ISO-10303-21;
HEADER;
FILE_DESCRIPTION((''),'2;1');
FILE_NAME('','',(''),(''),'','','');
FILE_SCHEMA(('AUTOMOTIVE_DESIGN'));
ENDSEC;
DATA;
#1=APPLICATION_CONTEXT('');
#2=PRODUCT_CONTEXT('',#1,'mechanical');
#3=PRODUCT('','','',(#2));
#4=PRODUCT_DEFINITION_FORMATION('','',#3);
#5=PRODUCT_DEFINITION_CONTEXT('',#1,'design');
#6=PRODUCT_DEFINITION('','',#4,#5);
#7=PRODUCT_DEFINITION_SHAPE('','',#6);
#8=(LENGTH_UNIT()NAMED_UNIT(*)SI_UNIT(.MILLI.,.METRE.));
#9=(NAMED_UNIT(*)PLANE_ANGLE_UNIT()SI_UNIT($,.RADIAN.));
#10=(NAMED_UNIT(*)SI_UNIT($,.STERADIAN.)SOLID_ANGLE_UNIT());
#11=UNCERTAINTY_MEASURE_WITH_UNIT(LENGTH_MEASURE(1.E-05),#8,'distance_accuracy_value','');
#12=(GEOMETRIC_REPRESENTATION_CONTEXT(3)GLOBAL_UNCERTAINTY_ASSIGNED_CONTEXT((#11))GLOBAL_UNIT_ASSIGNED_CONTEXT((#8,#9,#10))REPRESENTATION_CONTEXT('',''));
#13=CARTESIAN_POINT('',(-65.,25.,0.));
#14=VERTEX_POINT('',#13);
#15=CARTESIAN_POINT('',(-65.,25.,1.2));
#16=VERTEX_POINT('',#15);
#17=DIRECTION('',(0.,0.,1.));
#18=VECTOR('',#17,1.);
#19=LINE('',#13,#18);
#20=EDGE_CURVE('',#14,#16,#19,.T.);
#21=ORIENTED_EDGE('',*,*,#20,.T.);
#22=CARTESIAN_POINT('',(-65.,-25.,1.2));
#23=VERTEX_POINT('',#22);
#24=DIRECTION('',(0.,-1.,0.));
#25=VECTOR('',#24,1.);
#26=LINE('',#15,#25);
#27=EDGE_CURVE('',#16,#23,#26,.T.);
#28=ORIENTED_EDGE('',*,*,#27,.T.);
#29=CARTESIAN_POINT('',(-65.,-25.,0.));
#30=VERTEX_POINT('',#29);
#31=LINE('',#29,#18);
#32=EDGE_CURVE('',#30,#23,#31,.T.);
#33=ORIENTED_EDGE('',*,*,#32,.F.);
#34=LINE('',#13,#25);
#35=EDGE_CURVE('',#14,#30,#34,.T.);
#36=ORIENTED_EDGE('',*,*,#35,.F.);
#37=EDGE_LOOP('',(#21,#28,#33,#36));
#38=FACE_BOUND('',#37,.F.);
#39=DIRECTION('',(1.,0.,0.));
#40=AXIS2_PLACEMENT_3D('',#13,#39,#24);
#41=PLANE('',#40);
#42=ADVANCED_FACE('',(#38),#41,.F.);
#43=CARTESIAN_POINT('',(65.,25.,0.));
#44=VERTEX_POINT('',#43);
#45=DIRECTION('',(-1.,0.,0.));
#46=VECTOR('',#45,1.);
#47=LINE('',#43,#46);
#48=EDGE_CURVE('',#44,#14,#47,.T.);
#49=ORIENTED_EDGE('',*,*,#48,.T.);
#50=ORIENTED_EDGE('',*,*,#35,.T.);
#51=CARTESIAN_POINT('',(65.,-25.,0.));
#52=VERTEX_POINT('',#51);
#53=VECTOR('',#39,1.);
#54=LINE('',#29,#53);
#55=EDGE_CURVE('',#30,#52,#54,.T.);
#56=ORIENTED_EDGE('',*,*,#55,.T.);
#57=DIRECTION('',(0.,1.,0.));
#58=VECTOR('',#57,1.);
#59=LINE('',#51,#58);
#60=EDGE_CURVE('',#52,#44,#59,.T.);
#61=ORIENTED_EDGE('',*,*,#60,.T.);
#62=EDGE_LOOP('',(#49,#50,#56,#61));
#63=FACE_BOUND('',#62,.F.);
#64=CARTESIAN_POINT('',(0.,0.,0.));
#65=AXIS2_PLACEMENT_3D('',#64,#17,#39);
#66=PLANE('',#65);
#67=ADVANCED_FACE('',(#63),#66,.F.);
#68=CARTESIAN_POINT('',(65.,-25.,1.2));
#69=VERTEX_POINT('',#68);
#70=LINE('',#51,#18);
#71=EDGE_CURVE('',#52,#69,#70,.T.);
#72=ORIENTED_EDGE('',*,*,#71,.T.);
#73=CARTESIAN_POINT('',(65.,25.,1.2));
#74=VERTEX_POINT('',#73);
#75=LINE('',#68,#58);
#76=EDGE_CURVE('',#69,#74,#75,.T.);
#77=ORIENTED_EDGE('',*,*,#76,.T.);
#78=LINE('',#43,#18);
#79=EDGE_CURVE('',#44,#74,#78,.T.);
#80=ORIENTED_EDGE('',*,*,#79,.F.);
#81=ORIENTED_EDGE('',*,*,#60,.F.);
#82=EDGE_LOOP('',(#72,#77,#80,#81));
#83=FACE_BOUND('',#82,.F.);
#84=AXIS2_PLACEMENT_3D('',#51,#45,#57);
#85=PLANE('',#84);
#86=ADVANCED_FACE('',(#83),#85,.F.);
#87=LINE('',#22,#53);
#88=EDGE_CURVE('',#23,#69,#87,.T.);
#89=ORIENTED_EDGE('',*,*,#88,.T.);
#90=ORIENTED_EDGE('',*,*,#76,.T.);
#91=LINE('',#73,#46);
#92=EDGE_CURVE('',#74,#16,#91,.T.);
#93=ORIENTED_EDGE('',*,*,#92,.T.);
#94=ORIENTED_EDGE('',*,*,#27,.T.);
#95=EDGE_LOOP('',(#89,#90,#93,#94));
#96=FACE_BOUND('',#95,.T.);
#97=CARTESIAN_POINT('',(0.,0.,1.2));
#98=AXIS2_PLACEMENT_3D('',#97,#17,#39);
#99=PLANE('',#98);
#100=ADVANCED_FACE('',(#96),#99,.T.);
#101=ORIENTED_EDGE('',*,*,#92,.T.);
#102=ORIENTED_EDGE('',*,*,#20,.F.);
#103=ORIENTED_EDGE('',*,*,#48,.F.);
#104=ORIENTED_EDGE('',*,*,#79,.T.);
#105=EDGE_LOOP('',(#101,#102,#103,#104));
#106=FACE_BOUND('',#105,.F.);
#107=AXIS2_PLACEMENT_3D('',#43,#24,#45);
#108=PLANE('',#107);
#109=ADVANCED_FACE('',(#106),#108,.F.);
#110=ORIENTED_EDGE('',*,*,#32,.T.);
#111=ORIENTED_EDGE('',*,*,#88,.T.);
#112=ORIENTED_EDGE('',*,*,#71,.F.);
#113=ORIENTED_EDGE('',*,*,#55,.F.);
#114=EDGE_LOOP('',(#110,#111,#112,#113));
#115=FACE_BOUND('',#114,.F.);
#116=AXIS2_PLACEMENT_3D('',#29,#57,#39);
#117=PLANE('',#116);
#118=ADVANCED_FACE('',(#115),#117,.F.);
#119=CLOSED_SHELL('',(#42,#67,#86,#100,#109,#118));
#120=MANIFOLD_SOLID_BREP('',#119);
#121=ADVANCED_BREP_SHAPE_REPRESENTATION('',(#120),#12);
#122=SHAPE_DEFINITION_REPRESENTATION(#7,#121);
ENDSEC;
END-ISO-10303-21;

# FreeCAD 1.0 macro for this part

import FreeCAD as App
import Part
import Sketcher
Q = App.Units.Quantity


def add_polygon(sketch, points):
    """Adds a closed chain of lines whose ends are joined by coincident constraints."""
    first, n = sketch.GeometryCount, len(points)
    for a, b in zip(points, points[1:] + points[:1]):
        sketch.addGeometry(Part.LineSegment(App.Vector(*a, 0), App.Vector(*b, 0)), False)
    for i in range(n):
        sketch.addConstraint(Sketcher.Constraint("Coincident", first + i, 2, first + (i + 1) % n, 1))

doc = App.newDocument("Part")
body = doc.addObject("PartDesign::Body", "Body")

sketch1 = body.newObject("Sketcher::SketchObject", "Sketch")
sketch1.AttachmentSupport = (doc.getObject("XY_Plane"), [""])
sketch1.MapMode = "FlatFace"
add_polygon(sketch1, [(-65, 25), (-65, -25), (65, -25), (65, 25)])
sketch1.addConstraint([
    Sketcher.Constraint("Vertical", 0),
    Sketcher.Constraint("Horizontal", 1),
    Sketcher.Constraint("Vertical", 2),
    Sketcher.Constraint("Horizontal", 3),
    Sketcher.Constraint("Symmetric", 0, 2, 2, 2, -1, 1),
    Sketcher.Constraint("DistanceX", 1, 1, 1, 2, Q("130 mm")),
    Sketcher.Constraint("DistanceY", 0, 2, 0, 1, Q("50 mm")),
])
pad1 = body.newObject("PartDesign::Pad", "Pad")
pad1.Profile = sketch1
pad1.Length = 1.2

doc.recompute()
